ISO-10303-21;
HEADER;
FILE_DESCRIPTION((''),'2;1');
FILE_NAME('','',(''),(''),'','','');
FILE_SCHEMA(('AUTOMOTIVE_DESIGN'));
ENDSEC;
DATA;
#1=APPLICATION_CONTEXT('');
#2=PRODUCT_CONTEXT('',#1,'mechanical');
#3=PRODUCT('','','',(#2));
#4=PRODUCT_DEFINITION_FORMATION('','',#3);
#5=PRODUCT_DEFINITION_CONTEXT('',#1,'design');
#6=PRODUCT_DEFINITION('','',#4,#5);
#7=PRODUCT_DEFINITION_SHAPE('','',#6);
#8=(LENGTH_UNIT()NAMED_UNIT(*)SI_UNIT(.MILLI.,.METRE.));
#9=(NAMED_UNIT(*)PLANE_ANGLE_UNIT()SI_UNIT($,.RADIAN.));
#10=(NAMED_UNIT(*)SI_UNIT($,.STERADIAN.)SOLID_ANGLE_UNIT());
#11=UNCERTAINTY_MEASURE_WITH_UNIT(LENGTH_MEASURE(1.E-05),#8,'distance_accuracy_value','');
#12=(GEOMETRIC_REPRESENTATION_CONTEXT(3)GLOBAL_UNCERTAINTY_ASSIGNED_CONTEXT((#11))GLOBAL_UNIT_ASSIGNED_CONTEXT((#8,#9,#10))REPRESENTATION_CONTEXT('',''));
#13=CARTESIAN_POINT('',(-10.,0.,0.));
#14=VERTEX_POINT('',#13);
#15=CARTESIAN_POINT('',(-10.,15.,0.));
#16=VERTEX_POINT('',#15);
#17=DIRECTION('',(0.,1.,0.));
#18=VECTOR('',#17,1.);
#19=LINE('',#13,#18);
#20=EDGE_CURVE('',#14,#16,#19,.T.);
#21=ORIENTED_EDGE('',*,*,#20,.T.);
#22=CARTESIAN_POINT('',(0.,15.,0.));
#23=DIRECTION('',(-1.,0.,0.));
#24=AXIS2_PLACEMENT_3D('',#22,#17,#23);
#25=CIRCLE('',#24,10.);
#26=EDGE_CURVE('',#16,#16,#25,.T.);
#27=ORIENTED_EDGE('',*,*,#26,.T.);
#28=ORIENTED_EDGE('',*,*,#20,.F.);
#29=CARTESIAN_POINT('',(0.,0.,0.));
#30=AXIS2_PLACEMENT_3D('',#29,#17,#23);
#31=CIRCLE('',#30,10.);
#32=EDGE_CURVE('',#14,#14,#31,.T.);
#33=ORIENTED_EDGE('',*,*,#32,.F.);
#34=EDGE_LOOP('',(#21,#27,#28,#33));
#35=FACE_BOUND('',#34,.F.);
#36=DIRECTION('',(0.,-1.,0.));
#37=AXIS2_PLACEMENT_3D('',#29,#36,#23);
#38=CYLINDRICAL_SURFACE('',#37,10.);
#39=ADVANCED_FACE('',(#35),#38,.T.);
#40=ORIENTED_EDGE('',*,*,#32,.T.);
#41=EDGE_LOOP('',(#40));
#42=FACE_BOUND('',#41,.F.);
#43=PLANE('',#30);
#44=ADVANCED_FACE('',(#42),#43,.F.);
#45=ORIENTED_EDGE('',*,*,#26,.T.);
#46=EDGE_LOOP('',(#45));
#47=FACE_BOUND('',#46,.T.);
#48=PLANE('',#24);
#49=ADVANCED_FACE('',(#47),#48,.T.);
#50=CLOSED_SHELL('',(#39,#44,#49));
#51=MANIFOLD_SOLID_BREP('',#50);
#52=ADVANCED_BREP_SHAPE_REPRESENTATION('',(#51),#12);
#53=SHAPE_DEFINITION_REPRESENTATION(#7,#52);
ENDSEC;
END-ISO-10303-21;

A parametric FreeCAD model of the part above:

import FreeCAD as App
import Part
import Sketcher
from FreeCAD import Vector

doc = App.newDocument("Part")
body = doc.addObject("PartDesign::Body", "Body")

sketch1 = doc.addObject("Sketcher::SketchObject", "Sketch")
body.addObject(sketch1)
sketch1.AttachmentSupport = (doc.XZ_Plane, [""])
sketch1.MapMode = "FlatFace"
sketch1.addGeometry(Part.Circle(Vector(0, 0, 0), Vector(0, 0, 1), 10), False)
sketch1.addConstraint(Sketcher.Constraint("Coincident", 0, 3, -1, 1))
sketch1.addConstraint(Sketcher.Constraint("Diameter", 0, 20.0))
pad1 = doc.addObject("PartDesign::Pad", "Pad")
body.addObject(pad1)
pad1.Profile = sketch1
pad1.Length = 15
pad1.Reversed = True

doc.recompute()
